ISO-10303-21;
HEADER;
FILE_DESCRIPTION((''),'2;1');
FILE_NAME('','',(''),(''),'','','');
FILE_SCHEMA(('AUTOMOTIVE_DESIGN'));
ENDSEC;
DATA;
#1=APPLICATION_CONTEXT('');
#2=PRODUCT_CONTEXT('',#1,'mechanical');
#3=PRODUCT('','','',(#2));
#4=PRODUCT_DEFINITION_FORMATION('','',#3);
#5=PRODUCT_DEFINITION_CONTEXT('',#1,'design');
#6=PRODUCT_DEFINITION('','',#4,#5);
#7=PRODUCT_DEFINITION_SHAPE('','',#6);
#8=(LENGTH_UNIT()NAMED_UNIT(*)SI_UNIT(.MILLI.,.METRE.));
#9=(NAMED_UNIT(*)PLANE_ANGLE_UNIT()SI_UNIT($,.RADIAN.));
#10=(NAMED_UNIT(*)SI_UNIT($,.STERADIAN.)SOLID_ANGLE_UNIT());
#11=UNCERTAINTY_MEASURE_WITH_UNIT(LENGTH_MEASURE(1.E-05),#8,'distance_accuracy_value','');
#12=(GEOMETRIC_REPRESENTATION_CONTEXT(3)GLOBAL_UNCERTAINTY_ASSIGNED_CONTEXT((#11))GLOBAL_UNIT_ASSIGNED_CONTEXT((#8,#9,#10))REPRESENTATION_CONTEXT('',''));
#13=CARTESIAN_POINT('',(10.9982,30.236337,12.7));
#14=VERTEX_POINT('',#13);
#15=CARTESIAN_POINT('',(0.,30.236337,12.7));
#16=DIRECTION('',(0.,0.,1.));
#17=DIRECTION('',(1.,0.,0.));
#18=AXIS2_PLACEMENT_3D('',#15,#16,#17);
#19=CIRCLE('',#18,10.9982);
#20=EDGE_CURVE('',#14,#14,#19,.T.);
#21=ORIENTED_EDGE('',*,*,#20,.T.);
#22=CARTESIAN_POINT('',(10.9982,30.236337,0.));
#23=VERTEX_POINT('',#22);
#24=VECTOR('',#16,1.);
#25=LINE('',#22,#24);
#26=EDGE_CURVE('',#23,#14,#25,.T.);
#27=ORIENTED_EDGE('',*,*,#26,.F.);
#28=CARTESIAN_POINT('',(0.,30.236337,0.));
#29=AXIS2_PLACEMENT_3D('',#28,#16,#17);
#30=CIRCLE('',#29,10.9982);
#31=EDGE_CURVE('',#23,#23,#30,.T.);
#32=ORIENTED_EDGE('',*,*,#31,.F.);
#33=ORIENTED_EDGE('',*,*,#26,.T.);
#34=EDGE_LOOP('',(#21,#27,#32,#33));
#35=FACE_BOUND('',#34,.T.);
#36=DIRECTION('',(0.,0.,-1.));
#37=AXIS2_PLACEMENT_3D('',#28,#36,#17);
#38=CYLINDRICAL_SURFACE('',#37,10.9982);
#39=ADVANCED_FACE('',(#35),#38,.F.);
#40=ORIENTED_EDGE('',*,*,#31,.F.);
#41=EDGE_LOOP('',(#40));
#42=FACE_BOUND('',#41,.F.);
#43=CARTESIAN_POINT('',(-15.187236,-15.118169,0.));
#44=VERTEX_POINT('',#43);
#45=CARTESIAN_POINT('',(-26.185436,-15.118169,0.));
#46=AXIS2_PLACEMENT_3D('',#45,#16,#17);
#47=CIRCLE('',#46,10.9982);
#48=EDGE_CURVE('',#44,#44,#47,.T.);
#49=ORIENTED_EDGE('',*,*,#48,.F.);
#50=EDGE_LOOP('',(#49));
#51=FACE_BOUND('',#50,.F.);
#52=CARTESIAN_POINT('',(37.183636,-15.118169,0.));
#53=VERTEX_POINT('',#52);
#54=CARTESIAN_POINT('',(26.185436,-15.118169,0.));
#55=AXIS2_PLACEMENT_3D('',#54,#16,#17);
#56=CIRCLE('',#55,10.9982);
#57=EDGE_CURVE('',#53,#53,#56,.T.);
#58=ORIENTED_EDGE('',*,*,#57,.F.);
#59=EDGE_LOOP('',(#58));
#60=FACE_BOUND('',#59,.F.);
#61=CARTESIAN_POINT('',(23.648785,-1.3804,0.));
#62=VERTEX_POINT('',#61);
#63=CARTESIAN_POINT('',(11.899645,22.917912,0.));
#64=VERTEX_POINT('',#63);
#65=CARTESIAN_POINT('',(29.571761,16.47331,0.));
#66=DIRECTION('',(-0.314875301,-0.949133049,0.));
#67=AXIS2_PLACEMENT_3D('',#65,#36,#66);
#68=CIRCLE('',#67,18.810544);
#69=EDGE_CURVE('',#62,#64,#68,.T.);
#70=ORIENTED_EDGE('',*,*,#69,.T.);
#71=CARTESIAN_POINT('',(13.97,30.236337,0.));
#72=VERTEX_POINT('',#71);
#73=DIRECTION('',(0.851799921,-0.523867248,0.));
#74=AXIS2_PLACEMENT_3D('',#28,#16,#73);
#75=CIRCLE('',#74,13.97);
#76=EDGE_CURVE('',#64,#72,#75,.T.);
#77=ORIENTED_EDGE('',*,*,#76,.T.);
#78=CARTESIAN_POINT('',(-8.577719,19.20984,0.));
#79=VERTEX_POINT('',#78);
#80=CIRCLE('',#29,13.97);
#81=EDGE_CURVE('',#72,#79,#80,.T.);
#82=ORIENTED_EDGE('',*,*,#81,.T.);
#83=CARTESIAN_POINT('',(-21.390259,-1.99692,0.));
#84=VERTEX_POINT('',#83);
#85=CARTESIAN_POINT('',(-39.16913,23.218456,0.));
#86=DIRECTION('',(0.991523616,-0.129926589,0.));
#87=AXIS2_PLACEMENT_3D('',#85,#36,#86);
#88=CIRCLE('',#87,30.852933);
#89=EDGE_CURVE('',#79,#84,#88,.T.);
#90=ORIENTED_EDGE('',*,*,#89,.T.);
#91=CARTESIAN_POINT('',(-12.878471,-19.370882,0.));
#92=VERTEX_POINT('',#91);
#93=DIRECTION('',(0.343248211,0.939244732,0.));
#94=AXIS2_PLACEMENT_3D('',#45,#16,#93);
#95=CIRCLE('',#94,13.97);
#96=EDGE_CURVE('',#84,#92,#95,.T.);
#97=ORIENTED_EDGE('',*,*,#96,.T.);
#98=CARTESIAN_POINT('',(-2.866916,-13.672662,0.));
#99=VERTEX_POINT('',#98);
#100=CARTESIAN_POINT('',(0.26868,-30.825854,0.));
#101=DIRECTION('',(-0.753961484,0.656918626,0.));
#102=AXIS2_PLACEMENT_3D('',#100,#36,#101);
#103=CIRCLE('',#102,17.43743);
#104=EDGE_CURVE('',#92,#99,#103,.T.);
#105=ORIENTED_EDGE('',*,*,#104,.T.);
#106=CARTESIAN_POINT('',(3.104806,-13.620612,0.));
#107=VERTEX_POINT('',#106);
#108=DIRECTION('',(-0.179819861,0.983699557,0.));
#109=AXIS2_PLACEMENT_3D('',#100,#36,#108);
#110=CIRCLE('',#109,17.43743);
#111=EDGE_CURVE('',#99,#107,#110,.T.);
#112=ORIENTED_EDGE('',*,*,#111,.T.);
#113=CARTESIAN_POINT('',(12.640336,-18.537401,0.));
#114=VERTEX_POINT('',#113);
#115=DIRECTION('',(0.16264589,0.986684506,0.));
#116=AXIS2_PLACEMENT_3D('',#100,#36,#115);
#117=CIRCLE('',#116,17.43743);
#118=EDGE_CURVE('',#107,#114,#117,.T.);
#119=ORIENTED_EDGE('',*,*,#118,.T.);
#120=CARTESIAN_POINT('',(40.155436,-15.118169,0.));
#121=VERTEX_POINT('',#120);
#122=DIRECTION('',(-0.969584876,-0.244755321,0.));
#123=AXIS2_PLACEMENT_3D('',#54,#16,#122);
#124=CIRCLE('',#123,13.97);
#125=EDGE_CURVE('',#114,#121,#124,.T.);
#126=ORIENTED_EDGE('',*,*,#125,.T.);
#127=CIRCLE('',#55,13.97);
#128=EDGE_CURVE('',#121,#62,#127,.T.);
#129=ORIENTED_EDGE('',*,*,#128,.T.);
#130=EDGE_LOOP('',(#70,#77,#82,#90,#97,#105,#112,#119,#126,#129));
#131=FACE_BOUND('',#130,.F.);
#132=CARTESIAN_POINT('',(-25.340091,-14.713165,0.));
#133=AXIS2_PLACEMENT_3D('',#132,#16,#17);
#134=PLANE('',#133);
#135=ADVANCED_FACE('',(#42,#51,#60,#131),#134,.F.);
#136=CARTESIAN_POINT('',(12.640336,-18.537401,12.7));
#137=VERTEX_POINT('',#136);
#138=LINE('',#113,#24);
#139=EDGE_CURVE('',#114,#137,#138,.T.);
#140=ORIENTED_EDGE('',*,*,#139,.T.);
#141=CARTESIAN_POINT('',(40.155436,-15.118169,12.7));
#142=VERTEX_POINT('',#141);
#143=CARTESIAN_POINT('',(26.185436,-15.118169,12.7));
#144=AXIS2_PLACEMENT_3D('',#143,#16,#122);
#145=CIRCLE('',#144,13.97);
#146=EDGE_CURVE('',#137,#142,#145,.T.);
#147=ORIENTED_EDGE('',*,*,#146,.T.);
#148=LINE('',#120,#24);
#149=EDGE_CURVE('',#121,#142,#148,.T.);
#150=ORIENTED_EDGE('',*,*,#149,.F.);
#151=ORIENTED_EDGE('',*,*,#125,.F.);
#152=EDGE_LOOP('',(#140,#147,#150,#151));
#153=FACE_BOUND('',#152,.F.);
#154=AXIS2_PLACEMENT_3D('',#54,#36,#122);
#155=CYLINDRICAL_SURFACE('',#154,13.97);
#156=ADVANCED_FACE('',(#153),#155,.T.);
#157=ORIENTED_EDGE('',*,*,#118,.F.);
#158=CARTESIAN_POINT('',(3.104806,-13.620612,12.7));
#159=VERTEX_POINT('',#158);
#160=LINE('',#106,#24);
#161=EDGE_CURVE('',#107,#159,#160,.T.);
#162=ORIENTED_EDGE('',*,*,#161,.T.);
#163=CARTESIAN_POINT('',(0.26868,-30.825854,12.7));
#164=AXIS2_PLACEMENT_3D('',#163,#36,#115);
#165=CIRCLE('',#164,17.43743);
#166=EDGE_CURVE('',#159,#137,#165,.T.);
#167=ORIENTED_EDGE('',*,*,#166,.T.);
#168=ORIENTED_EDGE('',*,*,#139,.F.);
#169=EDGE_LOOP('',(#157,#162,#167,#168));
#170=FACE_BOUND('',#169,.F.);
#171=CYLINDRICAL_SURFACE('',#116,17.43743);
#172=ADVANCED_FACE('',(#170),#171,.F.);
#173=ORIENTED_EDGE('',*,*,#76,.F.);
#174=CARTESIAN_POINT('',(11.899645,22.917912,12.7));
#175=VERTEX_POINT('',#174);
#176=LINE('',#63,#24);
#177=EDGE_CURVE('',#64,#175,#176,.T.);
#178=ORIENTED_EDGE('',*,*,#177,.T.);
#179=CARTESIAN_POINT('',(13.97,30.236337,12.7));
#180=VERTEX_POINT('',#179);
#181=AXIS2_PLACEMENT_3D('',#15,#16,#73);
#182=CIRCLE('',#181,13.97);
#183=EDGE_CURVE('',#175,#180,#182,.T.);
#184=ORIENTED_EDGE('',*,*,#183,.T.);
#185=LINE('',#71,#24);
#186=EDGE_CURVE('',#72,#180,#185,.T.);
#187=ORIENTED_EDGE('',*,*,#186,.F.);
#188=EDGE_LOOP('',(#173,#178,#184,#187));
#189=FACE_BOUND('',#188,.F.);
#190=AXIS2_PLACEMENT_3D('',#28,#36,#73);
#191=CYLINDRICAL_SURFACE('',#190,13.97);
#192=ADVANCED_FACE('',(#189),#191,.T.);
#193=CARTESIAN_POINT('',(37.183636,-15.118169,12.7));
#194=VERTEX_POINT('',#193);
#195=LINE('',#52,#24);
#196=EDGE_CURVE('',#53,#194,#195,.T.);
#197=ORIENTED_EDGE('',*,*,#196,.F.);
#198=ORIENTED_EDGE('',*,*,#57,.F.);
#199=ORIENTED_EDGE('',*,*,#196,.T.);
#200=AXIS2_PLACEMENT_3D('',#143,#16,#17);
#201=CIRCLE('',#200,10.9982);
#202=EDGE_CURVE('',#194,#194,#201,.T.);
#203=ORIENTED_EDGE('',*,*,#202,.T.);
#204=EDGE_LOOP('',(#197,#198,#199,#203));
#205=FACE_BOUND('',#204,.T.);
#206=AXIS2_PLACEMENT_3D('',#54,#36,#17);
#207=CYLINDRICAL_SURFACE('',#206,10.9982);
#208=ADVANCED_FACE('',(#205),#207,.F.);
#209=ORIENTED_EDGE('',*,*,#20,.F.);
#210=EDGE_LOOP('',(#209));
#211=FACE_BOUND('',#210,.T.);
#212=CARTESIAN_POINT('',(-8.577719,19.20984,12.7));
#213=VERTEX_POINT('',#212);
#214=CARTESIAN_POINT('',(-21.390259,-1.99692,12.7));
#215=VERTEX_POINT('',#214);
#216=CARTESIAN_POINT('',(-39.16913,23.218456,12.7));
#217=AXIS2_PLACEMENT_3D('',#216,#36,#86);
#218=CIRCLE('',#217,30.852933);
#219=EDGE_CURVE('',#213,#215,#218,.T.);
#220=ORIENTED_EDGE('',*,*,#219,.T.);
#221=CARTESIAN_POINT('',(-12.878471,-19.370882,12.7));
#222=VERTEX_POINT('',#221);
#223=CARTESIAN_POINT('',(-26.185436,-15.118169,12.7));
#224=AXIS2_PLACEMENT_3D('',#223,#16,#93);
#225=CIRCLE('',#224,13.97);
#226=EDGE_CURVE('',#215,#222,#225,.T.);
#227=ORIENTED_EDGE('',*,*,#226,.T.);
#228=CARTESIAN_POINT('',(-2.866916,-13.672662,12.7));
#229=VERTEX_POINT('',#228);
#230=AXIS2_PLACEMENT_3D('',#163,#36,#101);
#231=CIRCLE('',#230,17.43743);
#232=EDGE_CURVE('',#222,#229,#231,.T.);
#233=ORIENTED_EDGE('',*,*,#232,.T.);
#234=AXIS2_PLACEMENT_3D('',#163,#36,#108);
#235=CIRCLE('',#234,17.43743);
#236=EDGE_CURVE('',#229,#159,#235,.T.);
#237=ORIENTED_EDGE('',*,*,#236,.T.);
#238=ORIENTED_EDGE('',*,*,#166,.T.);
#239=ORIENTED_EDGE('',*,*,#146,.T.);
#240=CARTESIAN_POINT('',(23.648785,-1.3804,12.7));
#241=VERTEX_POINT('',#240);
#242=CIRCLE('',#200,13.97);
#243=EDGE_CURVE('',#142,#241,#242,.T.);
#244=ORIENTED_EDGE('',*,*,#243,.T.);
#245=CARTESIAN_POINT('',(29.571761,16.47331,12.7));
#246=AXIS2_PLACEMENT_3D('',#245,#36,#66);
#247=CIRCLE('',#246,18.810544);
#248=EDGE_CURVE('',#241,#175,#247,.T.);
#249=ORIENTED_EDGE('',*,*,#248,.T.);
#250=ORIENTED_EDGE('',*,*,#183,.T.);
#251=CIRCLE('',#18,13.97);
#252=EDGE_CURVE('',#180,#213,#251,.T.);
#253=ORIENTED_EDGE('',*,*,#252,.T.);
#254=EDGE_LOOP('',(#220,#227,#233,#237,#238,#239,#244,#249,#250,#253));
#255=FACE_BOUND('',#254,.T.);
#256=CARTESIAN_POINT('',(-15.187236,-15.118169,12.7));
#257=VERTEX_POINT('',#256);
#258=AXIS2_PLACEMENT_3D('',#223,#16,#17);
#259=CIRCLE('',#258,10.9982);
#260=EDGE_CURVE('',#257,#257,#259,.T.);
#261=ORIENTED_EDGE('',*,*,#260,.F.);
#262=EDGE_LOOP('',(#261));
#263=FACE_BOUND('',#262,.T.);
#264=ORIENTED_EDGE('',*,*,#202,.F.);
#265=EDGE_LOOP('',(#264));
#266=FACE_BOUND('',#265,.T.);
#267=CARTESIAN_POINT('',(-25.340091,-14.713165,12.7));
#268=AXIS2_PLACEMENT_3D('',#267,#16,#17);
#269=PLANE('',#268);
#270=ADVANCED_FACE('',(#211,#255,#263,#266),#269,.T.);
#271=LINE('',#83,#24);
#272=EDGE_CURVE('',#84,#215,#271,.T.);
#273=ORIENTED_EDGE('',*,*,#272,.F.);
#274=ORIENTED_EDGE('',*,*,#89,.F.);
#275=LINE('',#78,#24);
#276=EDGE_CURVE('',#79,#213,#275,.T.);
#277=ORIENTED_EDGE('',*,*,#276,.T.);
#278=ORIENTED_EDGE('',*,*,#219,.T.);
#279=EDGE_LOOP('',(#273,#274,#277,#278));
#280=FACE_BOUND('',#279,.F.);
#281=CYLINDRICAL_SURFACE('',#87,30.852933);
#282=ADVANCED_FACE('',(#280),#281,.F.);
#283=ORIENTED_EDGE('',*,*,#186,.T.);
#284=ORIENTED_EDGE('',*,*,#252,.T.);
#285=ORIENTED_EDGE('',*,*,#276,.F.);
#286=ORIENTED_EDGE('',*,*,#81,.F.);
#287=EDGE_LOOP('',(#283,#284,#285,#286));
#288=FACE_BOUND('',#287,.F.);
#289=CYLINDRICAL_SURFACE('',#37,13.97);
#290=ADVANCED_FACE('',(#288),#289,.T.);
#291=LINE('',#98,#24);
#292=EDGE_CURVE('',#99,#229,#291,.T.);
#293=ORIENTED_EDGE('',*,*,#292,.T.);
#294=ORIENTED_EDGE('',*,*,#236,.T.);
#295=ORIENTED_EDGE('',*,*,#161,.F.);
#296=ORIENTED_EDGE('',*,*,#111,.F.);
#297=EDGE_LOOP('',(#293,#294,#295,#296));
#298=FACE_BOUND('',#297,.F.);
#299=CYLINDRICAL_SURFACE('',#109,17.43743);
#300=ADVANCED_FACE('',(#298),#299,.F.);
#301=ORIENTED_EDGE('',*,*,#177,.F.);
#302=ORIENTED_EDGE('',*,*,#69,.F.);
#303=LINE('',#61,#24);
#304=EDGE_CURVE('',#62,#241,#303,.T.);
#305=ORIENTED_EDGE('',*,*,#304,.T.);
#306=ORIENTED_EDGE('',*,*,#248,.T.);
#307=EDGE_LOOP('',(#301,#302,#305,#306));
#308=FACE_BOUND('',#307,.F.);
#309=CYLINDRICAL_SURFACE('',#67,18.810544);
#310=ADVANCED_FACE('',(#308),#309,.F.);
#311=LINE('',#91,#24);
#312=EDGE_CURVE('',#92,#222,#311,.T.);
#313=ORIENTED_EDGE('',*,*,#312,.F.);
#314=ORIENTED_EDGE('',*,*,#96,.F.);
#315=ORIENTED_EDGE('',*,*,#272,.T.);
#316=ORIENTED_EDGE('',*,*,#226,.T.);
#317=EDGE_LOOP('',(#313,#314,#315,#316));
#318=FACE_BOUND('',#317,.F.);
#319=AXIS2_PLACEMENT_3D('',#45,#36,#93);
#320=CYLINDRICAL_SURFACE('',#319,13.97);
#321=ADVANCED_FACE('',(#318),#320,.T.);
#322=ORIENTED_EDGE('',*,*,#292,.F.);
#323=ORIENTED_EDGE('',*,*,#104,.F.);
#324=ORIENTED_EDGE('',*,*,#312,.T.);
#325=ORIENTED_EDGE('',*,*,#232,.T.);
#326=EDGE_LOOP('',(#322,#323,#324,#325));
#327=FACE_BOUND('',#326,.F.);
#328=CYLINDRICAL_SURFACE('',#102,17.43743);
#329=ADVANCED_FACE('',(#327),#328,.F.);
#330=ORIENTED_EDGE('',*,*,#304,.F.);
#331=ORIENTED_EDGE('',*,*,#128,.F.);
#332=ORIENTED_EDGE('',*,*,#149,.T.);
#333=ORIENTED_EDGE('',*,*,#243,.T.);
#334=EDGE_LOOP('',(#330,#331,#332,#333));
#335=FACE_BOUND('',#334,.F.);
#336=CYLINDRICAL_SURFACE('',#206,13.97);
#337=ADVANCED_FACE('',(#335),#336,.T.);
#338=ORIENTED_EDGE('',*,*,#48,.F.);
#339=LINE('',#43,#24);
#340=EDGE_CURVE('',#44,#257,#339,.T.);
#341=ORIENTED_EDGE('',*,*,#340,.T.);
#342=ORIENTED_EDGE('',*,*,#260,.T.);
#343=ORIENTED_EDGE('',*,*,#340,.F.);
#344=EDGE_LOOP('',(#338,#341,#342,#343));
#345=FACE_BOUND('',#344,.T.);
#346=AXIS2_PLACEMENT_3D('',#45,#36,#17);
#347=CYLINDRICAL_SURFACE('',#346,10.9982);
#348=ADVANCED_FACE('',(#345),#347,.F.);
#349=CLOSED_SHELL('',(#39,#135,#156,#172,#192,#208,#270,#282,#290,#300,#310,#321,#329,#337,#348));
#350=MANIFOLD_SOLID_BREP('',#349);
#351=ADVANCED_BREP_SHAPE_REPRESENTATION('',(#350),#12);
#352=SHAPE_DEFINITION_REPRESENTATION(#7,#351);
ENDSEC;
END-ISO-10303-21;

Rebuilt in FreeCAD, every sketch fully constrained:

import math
import FreeCAD as App
import Part
import Sketcher
from FreeCAD import Vector
Q = App.Units.Quantity

doc = App.newDocument("Part")
body = doc.addObject("PartDesign::Body", "Body")

# Sketch on XY plane
sketch1 = body.newObject("Sketcher::SketchObject", "Sketch")
sketch1.AttachmentSupport = (doc.getObject("XY_Plane"), [""])
sketch1.MapMode = "FlatFace"
sketch1.addGeometry(Part.ArcOfCircle(Part.Circle(Vector(-26.185436, -15.118169, 0), Vector(0, 0, 1), 13.97), math.radians(69.925103), math.radians(342.276875)), False)
sketch1.addGeometry(Part.ArcOfCircle(Part.Circle(Vector(0.26868, -30.825854, 0), Vector(0, 0, 1), 17.43743), math.radians(100.359267), math.radians(138.934709)), False)
sketch1.addGeometry(Part.ArcOfCircle(Part.Circle(Vector(0.26868, -30.825854, 0), Vector(0, 0, 1), 17.43743), math.radians(80.639493), math.radians(100.359267)), False)
sketch1.addGeometry(Part.ArcOfCircle(Part.Circle(Vector(0.26868, -30.825854, 0), Vector(0, 0, 1), 17.43743), math.radians(44.806687), math.radians(80.639493)), False)
sketch1.addGeometry(Part.ArcOfCircle(Part.Circle(Vector(26.185436, -15.118169, 0), Vector(0, 0, 1), 13.97), math.radians(-165.832626), math.radians(0)), False)
sketch1.addGeometry(Part.ArcOfCircle(Part.Circle(Vector(26.185436, -15.118169, 0), Vector(0, 0, 1), 13.97), math.radians(0), math.radians(100.461714)), False)
sketch1.addGeometry(Part.ArcOfCircle(Part.Circle(Vector(29.571761, 16.47331, 0), Vector(0, 0, 1), 18.810544), math.radians(159.964285), math.radians(251.646714)), False)
sketch1.addGeometry(Part.ArcOfCircle(Part.Circle(Vector(0, 30.236337, 0), Vector(0, 0, 1), 13.97), math.radians(-31.592018), math.radians(0)), False)
sketch1.addGeometry(Part.ArcOfCircle(Part.Circle(Vector(0, 30.236337, 0), Vector(0, 0, 1), 13.97), math.radians(0), math.radians(232.119985)), False)
sketch1.addGeometry(Part.ArcOfCircle(Part.Circle(Vector(-39.16913, 23.218456, 0), Vector(0, 0, 1), 30.852933), math.radians(-54.813081), math.radians(-7.46535)), False)
sketch1.addGeometry(Part.Circle(Vector(-26.185436, -15.118169, 0), Vector(0, 0, 1), 10.9982), False)
sketch1.addGeometry(Part.Circle(Vector(0, 30.236337, 0), Vector(0, 0, 1), 10.9982), False)
sketch1.addGeometry(Part.Circle(Vector(26.185436, -15.118169, 0), Vector(0, 0, 1), 10.9982), False)
sketch1.addConstraint(Sketcher.Constraint("Coincident", 0, 2, 1, 2))
sketch1.addConstraint(Sketcher.Constraint("Coincident", 1, 1, 2, 2))
sketch1.addConstraint(Sketcher.Constraint("Coincident", 2, 1, 3, 2))
sketch1.addConstraint(Sketcher.Constraint("Coincident", 3, 1, 4, 1))
sketch1.addConstraint(Sketcher.Constraint("Coincident", 4, 2, 5, 1))
sketch1.addConstraint(Sketcher.Constraint("Coincident", 5, 2, 6, 2))
sketch1.addConstraint(Sketcher.Constraint("Coincident", 6, 1, 7, 1))
sketch1.addConstraint(Sketcher.Constraint("Coincident", 7, 2, 8, 1))
sketch1.addConstraint(Sketcher.Constraint("Coincident", 8, 2, 9, 2))
sketch1.addConstraint(Sketcher.Constraint("Coincident", 9, 1, 0, 1))
sketch1.addConstraint(Sketcher.Constraint("Coincident", 2, 3, 1, 3))
sketch1.addConstraint(Sketcher.Constraint("Coincident", 3, 3, 1, 3))
sketch1.addConstraint(Sketcher.Constraint("Coincident", 5, 3, 4, 3))
sketch1.addConstraint(Sketcher.Constraint("Coincident", 8, 3, 7, 3))
sketch1.addConstraint(Sketcher.Constraint("Coincident", 10, 3, 0, 3))
sketch1.addConstraint(Sketcher.Constraint("Coincident", 11, 3, 7, 3))
sketch1.addConstraint(Sketcher.Constraint("Coincident", 12, 3, 4, 3))
sketch1.addConstraint(Sketcher.Constraint("PointOnObject", 7, 3, -2))
sketch1.addConstraint(Sketcher.Constraint("Radius", 0, Q("0.55 in")))
sketch1.addConstraint(Sketcher.Constraint("Radius", 4, Q("0.55 in")))
sketch1.addConstraint(Sketcher.Constraint("Radius", 7, Q("0.55 in")))
sketch1.addConstraint(Sketcher.Constraint("Diameter", 10, Q("0.866 in")))
sketch1.addConstraint(Sketcher.Constraint("Diameter", 11, Q("0.866 in")))
sketch1.addConstraint(Sketcher.Constraint("Diameter", 12, Q("0.866 in")))
sketch1.addConstraint(Sketcher.Constraint("Radius", 1, 17.43743))
sketch1.addConstraint(Sketcher.Constraint("Radius", 6, 18.810544))
sketch1.addConstraint(Sketcher.Constraint("Radius", 9, 30.852933))
sketch1.addConstraint(Sketcher.Constraint("DistanceY", 3, 1, -1, 1, 18.537401))
sketch1.addConstraint(Sketcher.Constraint("DistanceY", 5, 2, -1, 1, 1.3804))
sketch1.addConstraint(Sketcher.Constraint("DistanceX", 3, 1, 4, 3, 13.545101))
sketch1.addConstraint(Sketcher.Constraint("DistanceY", 0, 3, -1, 1, 15.118169))
sketch1.addConstraint(Sketcher.Constraint("DistanceX", -1, 1, 1, 3, 0.26868))
sketch1.addConstraint(Sketcher.Constraint("DistanceX", -1, 1, 6, 3, 29.571761))
sketch1.addConstraint(Sketcher.Constraint("DistanceY", -1, 1, 6, 3, 16.47331))
sketch1.addConstraint(Sketcher.Constraint("DistanceX", 9, 3, -1, 1, 39.16913))
sketch1.addConstraint(Sketcher.Constraint("DistanceX", 0, 2, -1, 1, 12.878471))
sketch1.addConstraint(Sketcher.Constraint("DistanceY", 4, 2, -1, 1, 15.118169))
sketch1.addConstraint(Sketcher.Constraint("DistanceY", -1, 1, 6, 1, 22.917912))
sketch1.addConstraint(Sketcher.Constraint("DistanceX", 8, 2, -1, 1, 8.577719))
sketch1.addConstraint(Sketcher.Constraint("DistanceY", 0, 2, 1, 1, 5.69822))
sketch1.addConstraint(Sketcher.Constraint("DistanceY", 1, 1, 2, 1, 0.05205))
sketch1.addConstraint(Sketcher.Constraint("DistanceY", -1, 1, 7, 2, 30.236337))
pad1 = body.newObject("PartDesign::Pad", "Pad")
pad1.Profile = sketch1
pad1.Length = Q("0.5 in")

doc.recompute()
